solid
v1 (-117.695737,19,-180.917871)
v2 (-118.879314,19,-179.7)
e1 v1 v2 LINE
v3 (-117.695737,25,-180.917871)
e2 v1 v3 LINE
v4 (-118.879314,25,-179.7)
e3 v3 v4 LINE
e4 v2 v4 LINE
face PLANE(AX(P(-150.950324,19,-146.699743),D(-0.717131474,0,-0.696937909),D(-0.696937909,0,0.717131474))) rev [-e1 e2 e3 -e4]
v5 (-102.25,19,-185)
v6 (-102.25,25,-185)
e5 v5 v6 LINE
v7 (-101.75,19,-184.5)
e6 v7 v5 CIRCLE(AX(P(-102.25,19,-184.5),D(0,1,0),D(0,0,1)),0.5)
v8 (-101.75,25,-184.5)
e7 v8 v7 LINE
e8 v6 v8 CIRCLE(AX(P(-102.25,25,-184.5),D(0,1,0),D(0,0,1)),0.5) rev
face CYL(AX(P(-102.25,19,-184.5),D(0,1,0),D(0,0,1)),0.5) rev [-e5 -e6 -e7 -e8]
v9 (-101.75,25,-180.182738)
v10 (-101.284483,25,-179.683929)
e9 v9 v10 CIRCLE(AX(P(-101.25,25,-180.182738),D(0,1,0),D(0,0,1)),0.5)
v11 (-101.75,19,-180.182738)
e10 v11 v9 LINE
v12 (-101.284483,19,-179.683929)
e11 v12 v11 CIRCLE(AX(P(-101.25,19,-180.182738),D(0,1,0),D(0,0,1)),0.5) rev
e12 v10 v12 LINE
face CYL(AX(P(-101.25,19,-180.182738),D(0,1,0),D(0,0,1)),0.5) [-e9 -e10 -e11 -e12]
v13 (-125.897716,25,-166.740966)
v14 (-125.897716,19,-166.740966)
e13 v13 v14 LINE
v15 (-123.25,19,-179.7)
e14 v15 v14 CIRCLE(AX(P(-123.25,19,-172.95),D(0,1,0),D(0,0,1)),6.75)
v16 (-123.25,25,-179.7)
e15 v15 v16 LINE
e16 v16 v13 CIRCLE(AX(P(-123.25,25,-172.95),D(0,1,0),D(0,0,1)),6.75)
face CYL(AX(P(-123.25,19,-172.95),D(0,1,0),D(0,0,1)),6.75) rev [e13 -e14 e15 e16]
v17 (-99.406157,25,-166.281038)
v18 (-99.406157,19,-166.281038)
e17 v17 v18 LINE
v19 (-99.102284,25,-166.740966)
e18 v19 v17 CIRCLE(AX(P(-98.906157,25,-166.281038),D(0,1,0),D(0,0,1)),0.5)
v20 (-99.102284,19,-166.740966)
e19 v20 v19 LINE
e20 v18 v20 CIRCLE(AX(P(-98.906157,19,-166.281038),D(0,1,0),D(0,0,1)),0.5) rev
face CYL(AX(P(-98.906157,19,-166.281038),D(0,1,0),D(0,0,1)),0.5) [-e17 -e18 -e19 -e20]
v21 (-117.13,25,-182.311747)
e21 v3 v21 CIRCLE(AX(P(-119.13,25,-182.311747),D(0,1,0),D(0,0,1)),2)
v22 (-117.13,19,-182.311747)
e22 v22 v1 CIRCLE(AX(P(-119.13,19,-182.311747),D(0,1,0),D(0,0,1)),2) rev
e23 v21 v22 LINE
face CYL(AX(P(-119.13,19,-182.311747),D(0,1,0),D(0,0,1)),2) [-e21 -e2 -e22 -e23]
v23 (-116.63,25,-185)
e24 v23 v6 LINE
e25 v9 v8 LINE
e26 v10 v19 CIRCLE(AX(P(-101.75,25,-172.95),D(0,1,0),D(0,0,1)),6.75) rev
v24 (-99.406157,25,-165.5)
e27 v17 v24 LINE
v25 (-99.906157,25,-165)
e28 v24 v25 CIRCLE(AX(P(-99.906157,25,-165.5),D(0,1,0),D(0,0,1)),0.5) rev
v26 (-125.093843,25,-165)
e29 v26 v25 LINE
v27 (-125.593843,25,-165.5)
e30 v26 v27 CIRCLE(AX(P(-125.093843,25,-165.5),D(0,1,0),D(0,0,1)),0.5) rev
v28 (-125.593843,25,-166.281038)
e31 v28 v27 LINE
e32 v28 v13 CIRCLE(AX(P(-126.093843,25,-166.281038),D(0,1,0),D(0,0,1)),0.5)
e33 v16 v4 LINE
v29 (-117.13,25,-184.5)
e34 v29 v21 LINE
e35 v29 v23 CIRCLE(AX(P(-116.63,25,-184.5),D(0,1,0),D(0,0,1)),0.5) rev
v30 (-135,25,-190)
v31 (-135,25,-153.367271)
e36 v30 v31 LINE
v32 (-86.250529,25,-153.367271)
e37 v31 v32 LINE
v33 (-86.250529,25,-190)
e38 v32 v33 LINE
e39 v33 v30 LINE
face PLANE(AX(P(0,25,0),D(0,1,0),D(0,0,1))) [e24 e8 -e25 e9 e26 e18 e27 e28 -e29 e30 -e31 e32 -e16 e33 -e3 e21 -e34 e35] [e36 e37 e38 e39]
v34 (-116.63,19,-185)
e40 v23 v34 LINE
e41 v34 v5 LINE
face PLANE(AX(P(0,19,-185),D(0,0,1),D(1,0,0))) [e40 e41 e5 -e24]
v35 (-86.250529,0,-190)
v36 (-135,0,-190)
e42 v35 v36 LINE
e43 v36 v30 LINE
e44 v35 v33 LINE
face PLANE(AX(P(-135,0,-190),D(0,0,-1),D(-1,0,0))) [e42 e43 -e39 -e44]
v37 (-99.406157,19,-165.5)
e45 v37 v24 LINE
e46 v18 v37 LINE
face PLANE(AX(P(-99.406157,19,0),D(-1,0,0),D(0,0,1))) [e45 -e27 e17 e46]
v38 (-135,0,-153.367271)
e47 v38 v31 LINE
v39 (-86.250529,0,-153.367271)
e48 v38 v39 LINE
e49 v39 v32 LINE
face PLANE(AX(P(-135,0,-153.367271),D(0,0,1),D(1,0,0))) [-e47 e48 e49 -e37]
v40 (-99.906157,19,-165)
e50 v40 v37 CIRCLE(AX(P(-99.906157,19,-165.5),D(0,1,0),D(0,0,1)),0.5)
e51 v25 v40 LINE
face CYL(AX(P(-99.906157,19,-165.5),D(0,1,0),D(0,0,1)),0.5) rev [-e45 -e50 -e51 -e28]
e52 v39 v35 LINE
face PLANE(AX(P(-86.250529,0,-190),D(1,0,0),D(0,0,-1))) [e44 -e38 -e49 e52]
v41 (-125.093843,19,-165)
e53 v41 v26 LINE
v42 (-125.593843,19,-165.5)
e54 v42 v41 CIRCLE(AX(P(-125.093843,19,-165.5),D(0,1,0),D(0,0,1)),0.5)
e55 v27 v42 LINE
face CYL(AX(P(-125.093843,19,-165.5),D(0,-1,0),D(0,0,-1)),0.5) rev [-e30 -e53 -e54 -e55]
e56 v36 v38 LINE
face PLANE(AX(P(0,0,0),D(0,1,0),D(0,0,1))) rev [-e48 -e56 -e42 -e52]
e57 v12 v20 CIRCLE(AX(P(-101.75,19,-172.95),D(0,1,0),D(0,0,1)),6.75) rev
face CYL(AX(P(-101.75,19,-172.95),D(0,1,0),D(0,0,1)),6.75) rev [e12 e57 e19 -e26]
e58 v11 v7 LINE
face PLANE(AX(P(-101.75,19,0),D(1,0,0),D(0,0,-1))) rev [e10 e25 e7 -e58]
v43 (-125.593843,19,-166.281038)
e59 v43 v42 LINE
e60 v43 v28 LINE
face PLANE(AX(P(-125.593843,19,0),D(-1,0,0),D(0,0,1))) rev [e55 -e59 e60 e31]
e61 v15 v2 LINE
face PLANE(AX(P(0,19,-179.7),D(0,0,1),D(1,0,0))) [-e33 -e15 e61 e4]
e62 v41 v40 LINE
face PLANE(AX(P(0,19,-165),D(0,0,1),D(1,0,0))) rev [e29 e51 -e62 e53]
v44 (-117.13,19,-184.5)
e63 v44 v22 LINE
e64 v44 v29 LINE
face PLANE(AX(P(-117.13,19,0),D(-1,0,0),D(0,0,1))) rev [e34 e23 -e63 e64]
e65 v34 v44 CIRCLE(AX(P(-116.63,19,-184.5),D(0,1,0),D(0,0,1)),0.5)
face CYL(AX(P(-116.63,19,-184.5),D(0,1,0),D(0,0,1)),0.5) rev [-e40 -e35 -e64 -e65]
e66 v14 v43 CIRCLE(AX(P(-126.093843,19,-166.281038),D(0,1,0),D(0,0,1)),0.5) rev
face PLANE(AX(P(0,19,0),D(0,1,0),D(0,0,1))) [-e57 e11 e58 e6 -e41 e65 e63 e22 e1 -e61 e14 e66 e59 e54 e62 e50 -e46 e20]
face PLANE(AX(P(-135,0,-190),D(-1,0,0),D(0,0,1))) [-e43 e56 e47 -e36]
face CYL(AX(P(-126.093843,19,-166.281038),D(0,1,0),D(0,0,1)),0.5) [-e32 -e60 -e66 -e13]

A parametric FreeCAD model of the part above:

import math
import FreeCAD as App
import Part
import Sketcher


def edges_at(feature, points):
    """Names of the edges that pass closest to the given points."""
    edges = feature.Shape.Edges
    near = lambda p: min(range(len(edges)), key=lambda i: edges[i].distToShape(Part.Vertex(*p))[0])
    return sorted({f"Edge{near(p) + 1}" for p in points})


def add_polygon(sketch, points):
    """Adds a closed chain of lines whose ends are joined by coincident constraints."""
    first, n = sketch.GeometryCount, len(points)
    for a, b in zip(points, points[1:] + points[:1]):
        sketch.addGeometry(Part.LineSegment(App.Vector(*a, 0), App.Vector(*b, 0)), False)
    for i in range(n):
        sketch.addConstraint(Sketcher.Constraint("Coincident", first + i, 2, first + (i + 1) % n, 1))

doc = App.newDocument("Part")
body = doc.addObject("PartDesign::Body", "Body")

sketch1 = body.newObject("Sketcher::SketchObject", "Sketch")
sketch1.AttachmentSupport = (doc.getObject("XZ_Plane"), [""])
sketch1.MapMode = "FlatFace"
add_polygon(sketch1, [(-145, -200), (-145, 200), (145, 200), (145, -200)])
sketch1.addConstraint(Sketcher.Constraint("Vertical", 0))
sketch1.addConstraint(Sketcher.Constraint("Horizontal", 1))
sketch1.addConstraint(Sketcher.Constraint("Vertical", 2))
sketch1.addConstraint(Sketcher.Constraint("Horizontal", 3))
sketch1.addConstraint(Sketcher.Constraint("Symmetric", 0, 2, 2, 2, -1, 1))
sketch1.addConstraint(Sketcher.Constraint("DistanceX", 1, 1, 1, 2, 290.0))
sketch1.addConstraint(Sketcher.Constraint("DistanceY", 0, 1, 0, 2, 400.0))
pad1 = body.newObject("PartDesign::Pad", "Pad")
pad1.Profile = sketch1
pad1.Length = 35
pad1.Reversed = True

sketch2 = body.newObject("Sketcher::SketchObject", "Sketch001")
sketch2.AttachmentSupport = (doc.getObject("XZ_Plane"), [""])
sketch2.MapMode = "FlatFace"
sketch2.AttachmentOffset = App.Placement(App.Vector(0, 0, -35), App.Rotation())
add_polygon(sketch2, [(-135, -190), (-135, 190), (135, 190), (135, -190)])
sketch2.addConstraint(Sketcher.Constraint("Vertical", 0))
sketch2.addConstraint(Sketcher.Constraint("Horizontal", 1))
sketch2.addConstraint(Sketcher.Constraint("Vertical", 2))
sketch2.addConstraint(Sketcher.Constraint("Horizontal", 3))
sketch2.addConstraint(Sketcher.Constraint("Symmetric", 0, 2, 2, 2, -1, 1))
sketch2.addConstraint(Sketcher.Constraint("DistanceX", 1, 1, 1, 2, 270.0))
sketch2.addConstraint(Sketcher.Constraint("DistanceY", 0, 1, 0, 2, 380.0))
pocket1 = body.newObject("PartDesign::Pocket", "Pocket")
pocket1.Profile = sketch2
pocket1.Length = 10
pocket1.Reversed = True

sketch3 = body.newObject("Sketcher::SketchObject", "Sketch002")
sketch3.AttachmentSupport = (doc.getObject("XZ_Plane"), [""])
sketch3.MapMode = "FlatFace"
sketch3.AttachmentOffset = App.Placement(App.Vector(0, 0, -25), App.Rotation())
sketch3.addGeometry(Part.LineSegment(App.Vector(-101.75, -185, 0), App.Vector(-117.13, -185, 0)), False)
sketch3.addGeometry(Part.LineSegment(App.Vector(-117.13, -185, 0), App.Vector(-117.13, -181.5, 0)), False)
sketch3.addGeometry(Part.LineSegment(App.Vector(-117.13, -181.5, 0), App.Vector(-118.879314, -179.7, 0)), False)
sketch3.addGeometry(Part.LineSegment(App.Vector(-118.879314, -179.7, 0), App.Vector(-123.25, -179.7, 0)), False)
sketch3.addGeometry(Part.ArcOfCircle(Part.Circle(App.Vector(-123.25, -172.95, 0), App.Vector(0, 0, 1), 6.75), math.radians(110.318349), math.radians(270)), False)
sketch3.addGeometry(Part.LineSegment(App.Vector(-125.593843, -166.62, 0), App.Vector(-125.593843, -165, 0)), False)
sketch3.addGeometry(Part.LineSegment(App.Vector(-125.593843, -165, 0), App.Vector(-99.406157, -165, 0)), False)
sketch3.addGeometry(Part.LineSegment(App.Vector(-99.406157, -165, 0), App.Vector(-99.406157, -166.62, 0)), False)
sketch3.addGeometry(Part.ArcOfCircle(Part.Circle(App.Vector(-101.75, -172.95, 0), App.Vector(0, 0, 1), 6.75), math.radians(-90), math.radians(69.681651)), False)
sketch3.addGeometry(Part.LineSegment(App.Vector(-101.75, -179.7, 0), App.Vector(-101.75, -185, 0)), False)
sketch3.addConstraint(Sketcher.Constraint("Coincident", 0, 2, 1, 1))
sketch3.addConstraint(Sketcher.Constraint("Coincident", 1, 2, 2, 1))
sketch3.addConstraint(Sketcher.Constraint("Coincident", 2, 2, 3, 1))
sketch3.addConstraint(Sketcher.Constraint("Tangent", 3, 2, 4, 2))
sketch3.addConstraint(Sketcher.Constraint("Coincident", 4, 1, 5, 1))
sketch3.addConstraint(Sketcher.Constraint("Coincident", 5, 2, 6, 1))
sketch3.addConstraint(Sketcher.Constraint("Coincident", 6, 2, 7, 1))
sketch3.addConstraint(Sketcher.Constraint("Coincident", 7, 2, 8, 2))
sketch3.addConstraint(Sketcher.Constraint("Coincident", 8, 1, 9, 1))
sketch3.addConstraint(Sketcher.Constraint("Coincident", 9, 2, 0, 1))
sketch3.addConstraint(Sketcher.Constraint("Horizontal", 0))
sketch3.addConstraint(Sketcher.Constraint("Vertical", 1))
sketch3.addConstraint(Sketcher.Constraint("Horizontal", 3))
sketch3.addConstraint(Sketcher.Constraint("Vertical", 5))
sketch3.addConstraint(Sketcher.Constraint("Horizontal", 6))
sketch3.addConstraint(Sketcher.Constraint("Vertical", 7))
sketch3.addConstraint(Sketcher.Constraint("Vertical", 9))
sketch3.addConstraint(Sketcher.Constraint("Equal", 4, 8))
sketch3.addConstraint(Sketcher.Constraint("Horizontal", 4, 3, 8, 3))
sketch3.addConstraint(Sketcher.Constraint("Horizontal", 4, 1, 7, 2))
sketch3.addConstraint(Sketcher.Constraint("Radius", 4, 6.75))
sketch3.addConstraint(Sketcher.Constraint("DistanceY", 1, 1, 1, 2, 3.5))
sketch3.addConstraint(Sketcher.Constraint("DistanceY", 9, 2, 9, 1, 5.3))
sketch3.addConstraint(Sketcher.Constraint("DistanceY", 0, 2, -1, 1, 185.0))
sketch3.addConstraint(Sketcher.Constraint("DistanceY", 5, 2, -1, 1, 165.0))
sketch3.addConstraint(Sketcher.Constraint("DistanceX", 0, 2, 0, 1, 15.38))
sketch3.addConstraint(Sketcher.Constraint("DistanceY", 5, 1, 5, 2, 1.62))
sketch3.addConstraint(Sketcher.Constraint("DistanceX", 4, 3, 8, 3, 21.5))
sketch3.addConstraint(Sketcher.Constraint("Distance", 2, 2.51))
sketch3.addConstraint(Sketcher.Constraint("DistanceX", 4, 3, -1, 1, 123.25))
sketch3.addConstraint(Sketcher.Constraint("DistanceX", 0, 2, -1, 1, 117.13))
pocket2 = body.newObject("PartDesign::Pocket", "Pocket001")
pocket2.Profile = sketch3
pocket2.Length = 6
pocket2.Reversed = True
doc.recompute()

fillet = body.newObject("PartDesign::Fillet", "Fillet")
fillet.Base = (pocket2, edges_at(pocket2, [(-117.13, 22, -181.5)]))
fillet.Radius = 2
doc.recompute()

fillet2 = body.newObject("PartDesign::Fillet", "Fillet001")
fillet2.Base = (fillet, edges_at(fillet, [(-125.594, 22, -166.62)]))
fillet2.Radius = 0.5
doc.recompute()

fillet3 = body.newObject("PartDesign::Fillet", "Fillet002")
fillet3.Base = (fillet2, edges_at(fillet2, [(-99.406, 22, -166.62)]))
fillet3.Radius = 0.5
doc.recompute()

fillet4 = body.newObject("PartDesign::Fillet", "Fillet003")
fillet4.Base = (fillet3, edges_at(fillet3, [(-101.75, 22, -179.7)]))
fillet4.Radius = 0.5
doc.recompute()

fillet5 = body.newObject("PartDesign::Fillet", "Fillet004")
fillet5.Base = (fillet4, edges_at(fillet4, [(-101.75, 22, -185)]))
fillet5.Radius = 0.5
doc.recompute()

fillet6 = body.newObject("PartDesign::Fillet", "Fillet005")
fillet6.Base = (fillet5, edges_at(fillet5, [(-117.13, 22, -185)]))
fillet6.Radius = 0.5
doc.recompute()

fillet7 = body.newObject("PartDesign::Fillet", "Fillet006")
fillet7.Base = (fillet6, edges_at(fillet6, [(-99.406, 22, -165), (-125.594, 22, -165)]))
fillet7.Radius = 0.5

sketch4 = body.newObject("Sketcher::SketchObject", "Sketch003")
sketch4.AttachmentSupport = (doc.getObject("XZ_Plane"), [""])
sketch4.MapMode = "FlatFace"
sketch4.AttachmentOffset = App.Placement(App.Vector(0, 0, -35), App.Rotation())
add_polygon(sketch4, [(-145, -200), (-145, 200), (145, 200), (145, -200)])
add_polygon(sketch4, [(-86.250529, -153.367271), (-135, -153.367271), (-135, -190), (-86.250529, -190)])
sketch4.addConstraint(Sketcher.Constraint("Vertical", 0))
sketch4.addConstraint(Sketcher.Constraint("Horizontal", 1))
sketch4.addConstraint(Sketcher.Constraint("Vertical", 2))
sketch4.addConstraint(Sketcher.Constraint("Horizontal", 3))
sketch4.addConstraint(Sketcher.Constraint("Horizontal", 4))
sketch4.addConstraint(Sketcher.Constraint("Vertical", 5))
sketch4.addConstraint(Sketcher.Constraint("Horizontal", 6))
sketch4.addConstraint(Sketcher.Constraint("Vertical", 7))
sketch4.addConstraint(Sketcher.Constraint("Symmetric", 0, 2, 2, 2, -1, 1))
sketch4.addConstraint(Sketcher.Constraint("DistanceX", 1, 1, 1, 2, 290.0))
sketch4.addConstraint(Sketcher.Constraint("DistanceY", 0, 1, 0, 2, 400.0))
sketch4.addConstraint(Sketcher.Constraint("DistanceX", 4, 2, -1, 1, 135.0))
sketch4.addConstraint(Sketcher.Constraint("DistanceY", 5, 2, -1, 1, 190.0))
sketch4.addConstraint(Sketcher.Constraint("DistanceX", 4, 2, 4, 1, 48.749471))
sketch4.addConstraint(Sketcher.Constraint("DistanceY", 5, 2, 5, 1, 36.632729))
pocket3 = body.newObject("PartDesign::Pocket", "Pocket002")
pocket3.Profile = sketch4
pocket3.Type = "ThroughAll"
pocket3.Reversed = True

doc.recompute()
